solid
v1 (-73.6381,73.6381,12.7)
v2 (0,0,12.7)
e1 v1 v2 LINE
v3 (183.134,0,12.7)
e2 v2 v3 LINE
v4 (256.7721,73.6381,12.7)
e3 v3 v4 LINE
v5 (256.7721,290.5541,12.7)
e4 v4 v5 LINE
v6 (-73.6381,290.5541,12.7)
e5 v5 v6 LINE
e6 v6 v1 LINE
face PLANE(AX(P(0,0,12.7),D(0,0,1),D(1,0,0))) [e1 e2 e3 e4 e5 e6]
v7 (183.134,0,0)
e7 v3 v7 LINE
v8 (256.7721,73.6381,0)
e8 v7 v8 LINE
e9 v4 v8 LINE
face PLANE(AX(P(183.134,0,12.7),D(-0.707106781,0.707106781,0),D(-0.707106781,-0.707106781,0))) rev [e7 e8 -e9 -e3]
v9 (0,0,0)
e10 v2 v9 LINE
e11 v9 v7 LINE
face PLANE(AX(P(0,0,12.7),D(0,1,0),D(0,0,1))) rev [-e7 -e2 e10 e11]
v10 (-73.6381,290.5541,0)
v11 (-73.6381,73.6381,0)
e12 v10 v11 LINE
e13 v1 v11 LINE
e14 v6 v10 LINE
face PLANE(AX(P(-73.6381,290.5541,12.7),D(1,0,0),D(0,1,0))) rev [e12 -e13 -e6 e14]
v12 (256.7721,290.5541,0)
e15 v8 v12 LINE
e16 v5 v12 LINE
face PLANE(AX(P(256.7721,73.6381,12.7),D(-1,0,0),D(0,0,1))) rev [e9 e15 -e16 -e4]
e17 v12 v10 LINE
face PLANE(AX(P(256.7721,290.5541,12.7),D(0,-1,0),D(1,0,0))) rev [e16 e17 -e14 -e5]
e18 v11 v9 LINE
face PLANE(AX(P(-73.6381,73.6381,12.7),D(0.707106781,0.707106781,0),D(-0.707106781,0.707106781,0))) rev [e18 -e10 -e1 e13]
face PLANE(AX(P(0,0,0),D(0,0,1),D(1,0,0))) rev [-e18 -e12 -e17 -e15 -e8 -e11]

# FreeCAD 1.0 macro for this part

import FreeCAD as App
import Part
import Sketcher

V = App.Vector
Q = App.Units.Quantity


def add_polygon(sketch, points):
    """Adds a closed chain of lines whose ends are joined by coincident constraints."""
    first, n = sketch.GeometryCount, len(points)
    for a, b in zip(points, points[1:] + points[:1]):
        sketch.addGeometry(Part.LineSegment(App.Vector(*a, 0), App.Vector(*b, 0)), False)
    for i in range(n):
        sketch.addConstraint(Sketcher.Constraint("Coincident", first + i, 2, first + (i + 1) % n, 1))

doc = App.newDocument("Part")
body = doc.addObject("PartDesign::Body", "Body")

# Sketch on XY plane
sketch1 = body.newObject("Sketcher::SketchObject", "Sketch")
sketch1.AttachmentSupport = (doc.getObject("XY_Plane"), [""])
sketch1.MapMode = "FlatFace"
add_polygon(sketch1, [(0, 0), (183, 0), (257, 74), (257, 291), (-74, 291), (-74, 74)])  # lines 0-5
sketch1.addConstraint([
    Sketcher.Constraint("Horizontal", 0),
    Sketcher.Constraint("Vertical", 2),
    Sketcher.Constraint("Horizontal", 3),
    Sketcher.Constraint("Vertical", 4),
    Sketcher.Constraint("Coincident", 5, 2, -1, 1),
    Sketcher.Constraint("Perpendicular", 1, 5),
    Sketcher.Constraint("Horizontal", 1, 2, 4, 2),
    Sketcher.Constraint("Equal", 1, 5),
    Sketcher.Constraint("Distance", 1, Q("4.1 in")),
    Sketcher.Constraint("DistanceX", 0, 1, 0, 2, Q("7.21 in")),
    Sketcher.Constraint("DistanceY", 2, 1, 2, 2, Q("8.54 in")),
])
pad1 = body.newObject("PartDesign::Pad", "Pad")
pad1.Profile = sketch1
pad1.Length = Q("0.5 in")

doc.recompute()
